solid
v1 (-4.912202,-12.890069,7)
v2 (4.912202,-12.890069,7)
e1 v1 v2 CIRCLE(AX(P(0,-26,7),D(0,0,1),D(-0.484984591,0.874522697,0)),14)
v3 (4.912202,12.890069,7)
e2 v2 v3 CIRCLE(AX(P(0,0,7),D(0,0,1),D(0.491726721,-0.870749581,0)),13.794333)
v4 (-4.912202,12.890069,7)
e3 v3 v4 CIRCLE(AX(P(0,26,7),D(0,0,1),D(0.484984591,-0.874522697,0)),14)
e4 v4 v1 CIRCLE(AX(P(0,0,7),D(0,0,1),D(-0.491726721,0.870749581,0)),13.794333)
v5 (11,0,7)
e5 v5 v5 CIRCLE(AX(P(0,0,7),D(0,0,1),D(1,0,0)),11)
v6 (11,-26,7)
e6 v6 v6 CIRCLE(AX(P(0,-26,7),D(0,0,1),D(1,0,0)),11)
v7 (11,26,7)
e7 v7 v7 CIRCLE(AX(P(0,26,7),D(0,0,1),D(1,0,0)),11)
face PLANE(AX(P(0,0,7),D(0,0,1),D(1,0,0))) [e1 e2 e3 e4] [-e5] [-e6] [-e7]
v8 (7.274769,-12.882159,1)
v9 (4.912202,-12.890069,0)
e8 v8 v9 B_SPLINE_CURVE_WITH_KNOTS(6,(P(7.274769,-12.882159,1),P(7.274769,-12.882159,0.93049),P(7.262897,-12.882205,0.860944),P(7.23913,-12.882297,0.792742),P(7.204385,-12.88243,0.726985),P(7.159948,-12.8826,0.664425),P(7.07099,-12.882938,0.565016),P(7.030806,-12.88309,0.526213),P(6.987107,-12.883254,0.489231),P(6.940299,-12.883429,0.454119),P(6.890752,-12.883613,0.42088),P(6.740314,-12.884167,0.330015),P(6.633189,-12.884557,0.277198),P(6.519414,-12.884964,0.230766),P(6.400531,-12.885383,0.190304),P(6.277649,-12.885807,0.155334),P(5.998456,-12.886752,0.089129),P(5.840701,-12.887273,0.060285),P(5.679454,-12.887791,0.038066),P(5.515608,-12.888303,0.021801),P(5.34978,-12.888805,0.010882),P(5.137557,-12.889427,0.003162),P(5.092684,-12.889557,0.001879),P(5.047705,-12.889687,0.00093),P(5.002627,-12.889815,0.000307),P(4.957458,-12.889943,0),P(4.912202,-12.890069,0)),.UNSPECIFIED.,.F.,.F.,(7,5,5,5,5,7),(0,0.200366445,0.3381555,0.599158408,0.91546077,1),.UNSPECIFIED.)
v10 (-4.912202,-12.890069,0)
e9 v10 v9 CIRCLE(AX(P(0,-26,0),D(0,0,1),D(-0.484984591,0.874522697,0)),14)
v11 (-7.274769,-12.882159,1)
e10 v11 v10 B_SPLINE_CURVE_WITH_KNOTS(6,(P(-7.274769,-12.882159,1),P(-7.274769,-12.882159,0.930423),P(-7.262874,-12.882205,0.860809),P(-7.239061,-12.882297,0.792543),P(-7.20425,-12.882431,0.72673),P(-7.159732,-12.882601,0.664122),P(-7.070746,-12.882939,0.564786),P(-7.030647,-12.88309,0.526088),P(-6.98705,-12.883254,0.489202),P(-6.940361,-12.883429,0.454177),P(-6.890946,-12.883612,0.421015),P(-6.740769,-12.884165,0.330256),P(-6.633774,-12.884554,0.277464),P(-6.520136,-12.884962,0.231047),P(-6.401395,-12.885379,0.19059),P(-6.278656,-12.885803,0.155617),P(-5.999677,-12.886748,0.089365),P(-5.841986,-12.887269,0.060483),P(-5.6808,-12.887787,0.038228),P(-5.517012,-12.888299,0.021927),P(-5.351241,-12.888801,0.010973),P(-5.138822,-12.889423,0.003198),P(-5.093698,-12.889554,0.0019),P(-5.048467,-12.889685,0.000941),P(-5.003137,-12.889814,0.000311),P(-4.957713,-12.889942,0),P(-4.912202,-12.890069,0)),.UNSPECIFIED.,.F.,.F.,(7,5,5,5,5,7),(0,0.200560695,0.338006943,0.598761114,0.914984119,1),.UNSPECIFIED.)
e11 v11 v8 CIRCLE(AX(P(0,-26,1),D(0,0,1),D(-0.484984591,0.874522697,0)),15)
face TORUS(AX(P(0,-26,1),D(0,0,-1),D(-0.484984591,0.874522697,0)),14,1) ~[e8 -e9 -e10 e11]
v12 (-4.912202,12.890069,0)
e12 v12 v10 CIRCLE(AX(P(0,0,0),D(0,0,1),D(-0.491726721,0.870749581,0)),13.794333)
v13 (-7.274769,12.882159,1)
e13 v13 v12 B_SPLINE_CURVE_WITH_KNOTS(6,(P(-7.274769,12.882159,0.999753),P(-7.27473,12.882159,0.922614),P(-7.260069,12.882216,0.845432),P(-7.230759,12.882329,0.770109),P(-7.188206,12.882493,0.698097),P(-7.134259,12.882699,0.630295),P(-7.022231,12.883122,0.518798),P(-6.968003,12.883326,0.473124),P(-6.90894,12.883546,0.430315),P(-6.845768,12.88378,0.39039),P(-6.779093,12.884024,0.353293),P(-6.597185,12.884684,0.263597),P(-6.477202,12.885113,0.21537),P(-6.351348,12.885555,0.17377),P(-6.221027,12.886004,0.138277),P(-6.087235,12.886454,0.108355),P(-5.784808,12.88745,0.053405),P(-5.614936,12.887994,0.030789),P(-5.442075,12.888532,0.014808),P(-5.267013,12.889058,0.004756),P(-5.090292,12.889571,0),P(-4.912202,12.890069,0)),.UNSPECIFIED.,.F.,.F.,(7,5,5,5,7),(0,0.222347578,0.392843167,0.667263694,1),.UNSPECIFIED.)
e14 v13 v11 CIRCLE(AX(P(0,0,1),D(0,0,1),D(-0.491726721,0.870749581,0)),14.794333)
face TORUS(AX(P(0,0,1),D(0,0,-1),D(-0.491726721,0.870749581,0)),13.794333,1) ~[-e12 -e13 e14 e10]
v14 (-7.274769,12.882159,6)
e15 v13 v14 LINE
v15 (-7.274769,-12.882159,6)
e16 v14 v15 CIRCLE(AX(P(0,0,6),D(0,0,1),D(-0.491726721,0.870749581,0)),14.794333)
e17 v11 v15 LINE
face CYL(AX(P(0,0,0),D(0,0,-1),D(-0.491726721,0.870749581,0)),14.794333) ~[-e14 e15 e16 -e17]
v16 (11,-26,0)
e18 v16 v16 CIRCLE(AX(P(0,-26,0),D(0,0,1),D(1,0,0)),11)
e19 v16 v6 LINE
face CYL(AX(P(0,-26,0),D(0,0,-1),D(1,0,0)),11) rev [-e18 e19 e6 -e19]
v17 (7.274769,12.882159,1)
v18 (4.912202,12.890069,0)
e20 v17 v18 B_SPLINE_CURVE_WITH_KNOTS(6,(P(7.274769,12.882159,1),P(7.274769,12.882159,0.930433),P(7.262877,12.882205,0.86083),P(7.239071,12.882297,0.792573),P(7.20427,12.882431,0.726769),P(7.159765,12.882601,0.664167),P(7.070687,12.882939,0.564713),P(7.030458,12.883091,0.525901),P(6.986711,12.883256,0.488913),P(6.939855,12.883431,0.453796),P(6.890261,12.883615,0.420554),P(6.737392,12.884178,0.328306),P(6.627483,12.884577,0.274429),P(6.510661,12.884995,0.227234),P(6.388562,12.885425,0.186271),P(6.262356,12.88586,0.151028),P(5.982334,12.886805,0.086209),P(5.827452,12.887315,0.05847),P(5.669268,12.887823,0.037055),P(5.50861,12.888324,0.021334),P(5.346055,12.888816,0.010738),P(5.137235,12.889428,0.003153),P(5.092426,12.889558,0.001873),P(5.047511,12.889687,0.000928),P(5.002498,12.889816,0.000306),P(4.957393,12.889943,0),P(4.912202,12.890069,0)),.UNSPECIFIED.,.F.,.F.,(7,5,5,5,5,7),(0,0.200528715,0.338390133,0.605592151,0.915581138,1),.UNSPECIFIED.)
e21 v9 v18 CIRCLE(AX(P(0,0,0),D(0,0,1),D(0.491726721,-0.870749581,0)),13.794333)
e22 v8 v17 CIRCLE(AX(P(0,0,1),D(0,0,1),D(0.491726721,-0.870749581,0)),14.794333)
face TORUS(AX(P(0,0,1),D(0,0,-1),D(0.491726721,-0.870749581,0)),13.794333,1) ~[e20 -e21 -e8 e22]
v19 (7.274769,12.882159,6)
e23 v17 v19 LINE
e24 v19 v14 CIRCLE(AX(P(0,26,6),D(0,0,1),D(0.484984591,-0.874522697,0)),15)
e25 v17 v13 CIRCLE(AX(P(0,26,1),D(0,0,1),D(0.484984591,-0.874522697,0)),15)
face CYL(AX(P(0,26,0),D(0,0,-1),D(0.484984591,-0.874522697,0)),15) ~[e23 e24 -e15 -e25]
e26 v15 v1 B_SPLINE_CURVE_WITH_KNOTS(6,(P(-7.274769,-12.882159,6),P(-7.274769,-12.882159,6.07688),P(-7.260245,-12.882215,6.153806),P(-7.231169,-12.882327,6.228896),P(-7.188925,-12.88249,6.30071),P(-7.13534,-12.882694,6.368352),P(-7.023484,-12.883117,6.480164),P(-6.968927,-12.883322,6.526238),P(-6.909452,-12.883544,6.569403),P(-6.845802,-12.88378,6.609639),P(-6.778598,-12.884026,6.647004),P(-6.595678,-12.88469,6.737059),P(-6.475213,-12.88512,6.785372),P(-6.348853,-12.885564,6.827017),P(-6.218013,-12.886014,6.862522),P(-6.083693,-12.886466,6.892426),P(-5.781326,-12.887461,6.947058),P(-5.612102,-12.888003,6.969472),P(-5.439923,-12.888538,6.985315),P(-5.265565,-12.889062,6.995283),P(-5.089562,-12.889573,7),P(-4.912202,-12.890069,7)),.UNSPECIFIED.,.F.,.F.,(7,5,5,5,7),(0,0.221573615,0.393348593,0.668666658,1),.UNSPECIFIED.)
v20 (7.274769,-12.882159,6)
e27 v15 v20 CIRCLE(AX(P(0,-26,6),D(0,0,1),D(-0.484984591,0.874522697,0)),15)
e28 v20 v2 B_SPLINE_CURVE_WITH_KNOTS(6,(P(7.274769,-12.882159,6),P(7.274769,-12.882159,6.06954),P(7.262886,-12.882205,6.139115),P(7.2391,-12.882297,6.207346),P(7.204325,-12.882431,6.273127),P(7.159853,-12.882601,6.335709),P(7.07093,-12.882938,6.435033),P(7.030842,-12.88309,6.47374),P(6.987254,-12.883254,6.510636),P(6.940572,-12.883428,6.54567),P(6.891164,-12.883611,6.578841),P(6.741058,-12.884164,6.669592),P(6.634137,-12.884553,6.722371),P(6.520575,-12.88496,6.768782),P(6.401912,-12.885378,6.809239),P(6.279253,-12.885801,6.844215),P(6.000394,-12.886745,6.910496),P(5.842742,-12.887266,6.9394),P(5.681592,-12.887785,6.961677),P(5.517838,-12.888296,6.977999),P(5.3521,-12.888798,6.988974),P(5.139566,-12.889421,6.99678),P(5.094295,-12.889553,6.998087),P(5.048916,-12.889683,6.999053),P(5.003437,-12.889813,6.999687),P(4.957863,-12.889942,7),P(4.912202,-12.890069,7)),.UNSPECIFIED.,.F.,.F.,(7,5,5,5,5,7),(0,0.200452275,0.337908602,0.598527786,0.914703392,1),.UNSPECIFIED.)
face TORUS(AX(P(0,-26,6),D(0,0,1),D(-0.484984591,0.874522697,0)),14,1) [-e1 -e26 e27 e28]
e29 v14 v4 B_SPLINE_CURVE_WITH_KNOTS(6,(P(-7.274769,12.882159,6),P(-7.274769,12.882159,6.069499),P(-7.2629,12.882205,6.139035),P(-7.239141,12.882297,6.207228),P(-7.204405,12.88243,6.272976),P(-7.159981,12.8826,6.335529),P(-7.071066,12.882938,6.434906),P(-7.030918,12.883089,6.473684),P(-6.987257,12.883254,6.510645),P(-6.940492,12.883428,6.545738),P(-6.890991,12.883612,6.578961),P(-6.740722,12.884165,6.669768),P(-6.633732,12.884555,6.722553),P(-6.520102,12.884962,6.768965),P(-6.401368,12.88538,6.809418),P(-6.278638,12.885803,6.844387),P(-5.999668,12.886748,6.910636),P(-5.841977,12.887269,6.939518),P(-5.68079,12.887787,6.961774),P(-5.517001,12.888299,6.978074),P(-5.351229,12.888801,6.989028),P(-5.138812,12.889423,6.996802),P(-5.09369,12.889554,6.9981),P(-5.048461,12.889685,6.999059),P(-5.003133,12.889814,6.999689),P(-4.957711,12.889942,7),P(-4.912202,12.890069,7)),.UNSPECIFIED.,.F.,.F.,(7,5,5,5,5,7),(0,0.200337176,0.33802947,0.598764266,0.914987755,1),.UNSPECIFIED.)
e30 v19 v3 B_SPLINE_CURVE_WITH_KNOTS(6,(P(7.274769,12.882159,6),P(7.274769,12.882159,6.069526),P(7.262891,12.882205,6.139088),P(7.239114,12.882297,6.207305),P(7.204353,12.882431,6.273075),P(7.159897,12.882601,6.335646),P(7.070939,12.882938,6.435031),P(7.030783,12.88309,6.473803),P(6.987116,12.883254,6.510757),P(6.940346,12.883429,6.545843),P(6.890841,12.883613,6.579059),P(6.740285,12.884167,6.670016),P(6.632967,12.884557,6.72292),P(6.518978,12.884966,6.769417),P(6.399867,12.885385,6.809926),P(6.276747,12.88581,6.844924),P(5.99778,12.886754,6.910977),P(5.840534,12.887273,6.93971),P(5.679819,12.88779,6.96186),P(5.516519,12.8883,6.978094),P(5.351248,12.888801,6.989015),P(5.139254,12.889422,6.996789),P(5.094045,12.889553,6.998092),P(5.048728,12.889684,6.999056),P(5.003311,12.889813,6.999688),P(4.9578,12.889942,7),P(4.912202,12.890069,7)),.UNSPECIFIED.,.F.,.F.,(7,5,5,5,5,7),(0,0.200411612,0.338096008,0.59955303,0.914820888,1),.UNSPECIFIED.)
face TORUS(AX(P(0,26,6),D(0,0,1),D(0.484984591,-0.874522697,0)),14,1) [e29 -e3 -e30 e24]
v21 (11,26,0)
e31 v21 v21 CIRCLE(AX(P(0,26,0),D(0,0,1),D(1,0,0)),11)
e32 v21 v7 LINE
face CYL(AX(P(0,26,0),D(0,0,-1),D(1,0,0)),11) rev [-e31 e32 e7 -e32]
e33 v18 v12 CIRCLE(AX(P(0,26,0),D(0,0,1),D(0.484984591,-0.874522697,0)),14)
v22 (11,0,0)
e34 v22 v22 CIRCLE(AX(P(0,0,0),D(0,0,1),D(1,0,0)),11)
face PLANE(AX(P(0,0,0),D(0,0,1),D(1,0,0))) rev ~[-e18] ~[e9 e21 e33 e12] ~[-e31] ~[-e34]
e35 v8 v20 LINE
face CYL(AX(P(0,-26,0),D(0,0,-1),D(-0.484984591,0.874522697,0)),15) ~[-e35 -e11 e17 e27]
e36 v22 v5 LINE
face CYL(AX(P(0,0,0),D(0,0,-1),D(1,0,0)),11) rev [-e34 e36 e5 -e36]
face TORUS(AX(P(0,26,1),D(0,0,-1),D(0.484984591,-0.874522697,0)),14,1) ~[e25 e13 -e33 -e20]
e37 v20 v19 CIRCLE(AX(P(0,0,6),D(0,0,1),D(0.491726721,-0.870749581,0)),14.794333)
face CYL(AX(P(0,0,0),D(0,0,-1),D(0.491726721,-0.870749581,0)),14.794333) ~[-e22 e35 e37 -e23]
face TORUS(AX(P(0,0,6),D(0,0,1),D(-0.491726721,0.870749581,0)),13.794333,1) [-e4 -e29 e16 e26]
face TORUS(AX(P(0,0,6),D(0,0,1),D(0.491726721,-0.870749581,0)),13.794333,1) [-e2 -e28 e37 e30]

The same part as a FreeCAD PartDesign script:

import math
import FreeCAD as App
import Part
import Sketcher
from FreeCAD import Vector
Q = App.Units.Quantity


def edges_at(feature, points):
    """Names of the edges that pass closest to the given points."""
    edges = feature.Shape.Edges
    near = lambda p: min(range(len(edges)), key=lambda i: edges[i].distToShape(Part.Vertex(*p))[0])
    return sorted({f"Edge{near(p) + 1}" for p in points})

doc = App.newDocument("Part")
body = doc.addObject("PartDesign::Body", "Body")

# Sketch on XY plane
sketch1 = doc.addObject("Sketcher::SketchObject", "Sketch")
body.addObject(sketch1)
sketch1.AttachmentSupport = (doc.XY_Plane, [""])
sketch1.MapMode = "FlatFace"
sketch1.addGeometry(Part.ArcOfCircle(Part.Circle(Vector(0, 0, 0), Vector(0, 0, 1), 14.794333), math.radians(-60.545863), math.radians(60.545863)), False)
sketch1.addGeometry(Part.ArcOfCircle(Part.Circle(Vector(0, 26, 0), Vector(0, 0, 1), 15), math.radians(-60.988537), math.radians(240.988537)), False)
sketch1.addGeometry(Part.ArcOfCircle(Part.Circle(Vector(0, 0, 0), Vector(0, 0, 1), 14.794333), math.radians(119.454137), math.radians(240.545863)), False)
sketch1.addGeometry(Part.ArcOfCircle(Part.Circle(Vector(0, -26, 0), Vector(0, 0, 1), 15), math.radians(119.011463), math.radians(420.988537)), False)
sketch1.addGeometry(Part.Circle(Vector(0, -26, 0), Vector(0, 0, 1), 11), False)
sketch1.addGeometry(Part.Circle(Vector(0, 0, 0), Vector(0, 0, 1), 11), False)
sketch1.addGeometry(Part.Circle(Vector(0, 26, 0), Vector(0, 0, 1), 11), False)
sketch1.addConstraint(Sketcher.Constraint("Coincident", 0, 2, 1, 1))
sketch1.addConstraint(Sketcher.Constraint("Coincident", 1, 2, 2, 1))
sketch1.addConstraint(Sketcher.Constraint("Coincident", 2, 2, 3, 1))
sketch1.addConstraint(Sketcher.Constraint("Coincident", 3, 2, 0, 1))
sketch1.addConstraint(Sketcher.Constraint("Coincident", 0, 3, -1, 1))
sketch1.addConstraint(Sketcher.Constraint("Coincident", 2, 3, -1, 1))
sketch1.addConstraint(Sketcher.Constraint("Coincident", 5, 3, -1, 1))
sketch1.addConstraint(Sketcher.Constraint("Coincident", 4, 3, 3, 3))
sketch1.addConstraint(Sketcher.Constraint("Coincident", 6, 3, 1, 3))
sketch1.addConstraint(Sketcher.Constraint("Equal", 0, 2))
sketch1.addConstraint(Sketcher.Constraint("Equal", 1, 3))
sketch1.addConstraint(Sketcher.Constraint("Equal", 4, 5))
sketch1.addConstraint(Sketcher.Constraint("Equal", 5, 6))
sketch1.addConstraint(Sketcher.Constraint("Symmetric", 1, 3, 3, 3, -1, 1))
sketch1.addConstraint(Sketcher.Constraint("PointOnObject", 1, 3, -2))
sketch1.addConstraint(Sketcher.Constraint("Diameter", 4, Q("22 mm")))
sketch1.addConstraint(Sketcher.Constraint("Radius", 1, Q("15 mm")))
sketch1.addConstraint(Sketcher.Constraint("DistanceY", -1, 1, 1, 3, Q("26 mm")))
sketch1.addConstraint(Sketcher.Constraint("Radius", 0, Q("14.794333 mm")))
pad1 = doc.addObject("PartDesign::Pad", "Pad")
body.addObject(pad1)
pad1.Profile = sketch1
pad1.Length = 7
doc.recompute()

fillet = doc.addObject("PartDesign::Fillet", "Fillet")
body.addObject(fillet)
fillet.Base = (pad1, edges_at(pad1, [
    (0, -41, 7),
    (14.794, 0, 7),
    (0, 41, 7),
    (-14.794, 0, 7),
    (0, 41, 0),
    (14.794, 0, 0),
    (0, -41, 0),
    (-14.794, 0, 0),
]))
fillet.Radius = 1

doc.recompute()
